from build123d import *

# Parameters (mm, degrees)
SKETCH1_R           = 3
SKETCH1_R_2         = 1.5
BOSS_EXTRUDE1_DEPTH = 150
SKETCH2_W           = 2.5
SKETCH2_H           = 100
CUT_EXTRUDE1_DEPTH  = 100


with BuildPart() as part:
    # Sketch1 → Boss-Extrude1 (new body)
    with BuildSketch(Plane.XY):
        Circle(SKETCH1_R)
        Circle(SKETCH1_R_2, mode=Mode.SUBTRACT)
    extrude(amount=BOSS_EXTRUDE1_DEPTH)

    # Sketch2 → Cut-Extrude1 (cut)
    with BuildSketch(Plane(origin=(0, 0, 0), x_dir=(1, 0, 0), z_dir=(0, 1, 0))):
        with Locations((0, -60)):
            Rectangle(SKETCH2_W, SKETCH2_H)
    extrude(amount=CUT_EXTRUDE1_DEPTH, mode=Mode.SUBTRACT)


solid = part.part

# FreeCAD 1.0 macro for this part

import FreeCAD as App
import Part
import Sketcher
from FreeCAD import Vector

doc = App.newDocument("Part")
params = doc.addObject("Spreadsheet::Sheet", "Params")
for row, (alias, value) in enumerate([
    ("sketch1_diameter", "6 mm"),
    ("sketch1_diameter2", "3 mm"),
    ("pad1_length", "150 mm"),
    ("sketch2_height", "100 mm"),
    ("sketch2_width", "2.5 mm"),
    ("pocket1_length", "100 mm"),
], start=1):
    params.set(f"A{row}", alias)
    params.set(f"B{row}", "=" + value)
    params.setAlias(f"B{row}", alias)

body = doc.addObject("PartDesign::Body", "Body")

# Sketch on XY plane
sketch1 = body.newObject("Sketcher::SketchObject", "Sketch")
sketch1.AttachmentSupport = (doc.getObject("XY_Plane"), [""])
sketch1.MapMode = "FlatFace"
sketch1.addGeometry(Part.Circle(Vector(0, 0, 0), Vector(0, 0, 1), 3), False)
sketch1.addGeometry(Part.Circle(Vector(0, 0, 0), Vector(0, 0, 1), 1.5), False)
sketch1.addConstraint(Sketcher.Constraint("Coincident", 0, 3, -1, 1))
sketch1.addConstraint(Sketcher.Constraint("Coincident", 1, 3, -1, 1))
sketch1.addConstraint(Sketcher.Constraint("Diameter", 0, 6.0))
sketch1.addConstraint(Sketcher.Constraint("Diameter", 1, 3.0))
sketch1.setExpression("Constraints[2]", "Params.sketch1_diameter")
sketch1.setExpression("Constraints[3]", "Params.sketch1_diameter2")
pad1 = body.newObject("PartDesign::Pad", "Pad")
pad1.Profile = sketch1
pad1.setExpression("Length", "Params.pad1_length")

# Sketch on XZ plane
sketch2 = body.newObject("Sketcher::SketchObject", "Sketch001")
sketch2.AttachmentSupport = (doc.getObject("XZ_Plane"), [""])
sketch2.MapMode = "FlatFace"
sketch2.addGeometry(Part.LineSegment(Vector(-1.2, 10, 0), Vector(-1.2, 110, 0)), False)
sketch2.addGeometry(Part.LineSegment(Vector(-1.2, 110, 0), Vector(1.2, 110, 0)), False)
sketch2.addGeometry(Part.LineSegment(Vector(1.2, 110, 0), Vector(1.2, 10, 0)), False)
sketch2.addGeometry(Part.LineSegment(Vector(1.2, 10, 0), Vector(-1.2, 10, 0)), False)
sketch2.addConstraint(Sketcher.Constraint("Coincident", 0, 2, 1, 1))
sketch2.addConstraint(Sketcher.Constraint("Coincident", 1, 2, 2, 1))
sketch2.addConstraint(Sketcher.Constraint("Coincident", 2, 2, 3, 1))
sketch2.addConstraint(Sketcher.Constraint("Coincident", 3, 2, 0, 1))
sketch2.addConstraint(Sketcher.Constraint("Vertical", 0))
sketch2.addConstraint(Sketcher.Constraint("Horizontal", 1))
sketch2.addConstraint(Sketcher.Constraint("Vertical", 2))
sketch2.addConstraint(Sketcher.Constraint("Horizontal", 3))
sketch2.addConstraint(Sketcher.Constraint("DistanceY", 0, 1, 0, 2, 100.0))
sketch2.addConstraint(Sketcher.Constraint("DistanceX", 1, 1, 1, 2, 2.5))
sketch2.addConstraint(Sketcher.Constraint("DistanceY", -1, 1, 0, 2, 110.0))
sketch2.addConstraint(Sketcher.Constraint("DistanceX", 0, 2, -1, 1, 1.25))
sketch2.setExpression("Constraints[8]", "Params.sketch2_height")
sketch2.setExpression("Constraints[9]", "Params.sketch2_width")
pocket1 = body.newObject("PartDesign::Pocket", "Pocket")
pocket1.Profile = sketch2
pocket1.setExpression("Length", "Params.pocket1_length")

doc.recompute()
